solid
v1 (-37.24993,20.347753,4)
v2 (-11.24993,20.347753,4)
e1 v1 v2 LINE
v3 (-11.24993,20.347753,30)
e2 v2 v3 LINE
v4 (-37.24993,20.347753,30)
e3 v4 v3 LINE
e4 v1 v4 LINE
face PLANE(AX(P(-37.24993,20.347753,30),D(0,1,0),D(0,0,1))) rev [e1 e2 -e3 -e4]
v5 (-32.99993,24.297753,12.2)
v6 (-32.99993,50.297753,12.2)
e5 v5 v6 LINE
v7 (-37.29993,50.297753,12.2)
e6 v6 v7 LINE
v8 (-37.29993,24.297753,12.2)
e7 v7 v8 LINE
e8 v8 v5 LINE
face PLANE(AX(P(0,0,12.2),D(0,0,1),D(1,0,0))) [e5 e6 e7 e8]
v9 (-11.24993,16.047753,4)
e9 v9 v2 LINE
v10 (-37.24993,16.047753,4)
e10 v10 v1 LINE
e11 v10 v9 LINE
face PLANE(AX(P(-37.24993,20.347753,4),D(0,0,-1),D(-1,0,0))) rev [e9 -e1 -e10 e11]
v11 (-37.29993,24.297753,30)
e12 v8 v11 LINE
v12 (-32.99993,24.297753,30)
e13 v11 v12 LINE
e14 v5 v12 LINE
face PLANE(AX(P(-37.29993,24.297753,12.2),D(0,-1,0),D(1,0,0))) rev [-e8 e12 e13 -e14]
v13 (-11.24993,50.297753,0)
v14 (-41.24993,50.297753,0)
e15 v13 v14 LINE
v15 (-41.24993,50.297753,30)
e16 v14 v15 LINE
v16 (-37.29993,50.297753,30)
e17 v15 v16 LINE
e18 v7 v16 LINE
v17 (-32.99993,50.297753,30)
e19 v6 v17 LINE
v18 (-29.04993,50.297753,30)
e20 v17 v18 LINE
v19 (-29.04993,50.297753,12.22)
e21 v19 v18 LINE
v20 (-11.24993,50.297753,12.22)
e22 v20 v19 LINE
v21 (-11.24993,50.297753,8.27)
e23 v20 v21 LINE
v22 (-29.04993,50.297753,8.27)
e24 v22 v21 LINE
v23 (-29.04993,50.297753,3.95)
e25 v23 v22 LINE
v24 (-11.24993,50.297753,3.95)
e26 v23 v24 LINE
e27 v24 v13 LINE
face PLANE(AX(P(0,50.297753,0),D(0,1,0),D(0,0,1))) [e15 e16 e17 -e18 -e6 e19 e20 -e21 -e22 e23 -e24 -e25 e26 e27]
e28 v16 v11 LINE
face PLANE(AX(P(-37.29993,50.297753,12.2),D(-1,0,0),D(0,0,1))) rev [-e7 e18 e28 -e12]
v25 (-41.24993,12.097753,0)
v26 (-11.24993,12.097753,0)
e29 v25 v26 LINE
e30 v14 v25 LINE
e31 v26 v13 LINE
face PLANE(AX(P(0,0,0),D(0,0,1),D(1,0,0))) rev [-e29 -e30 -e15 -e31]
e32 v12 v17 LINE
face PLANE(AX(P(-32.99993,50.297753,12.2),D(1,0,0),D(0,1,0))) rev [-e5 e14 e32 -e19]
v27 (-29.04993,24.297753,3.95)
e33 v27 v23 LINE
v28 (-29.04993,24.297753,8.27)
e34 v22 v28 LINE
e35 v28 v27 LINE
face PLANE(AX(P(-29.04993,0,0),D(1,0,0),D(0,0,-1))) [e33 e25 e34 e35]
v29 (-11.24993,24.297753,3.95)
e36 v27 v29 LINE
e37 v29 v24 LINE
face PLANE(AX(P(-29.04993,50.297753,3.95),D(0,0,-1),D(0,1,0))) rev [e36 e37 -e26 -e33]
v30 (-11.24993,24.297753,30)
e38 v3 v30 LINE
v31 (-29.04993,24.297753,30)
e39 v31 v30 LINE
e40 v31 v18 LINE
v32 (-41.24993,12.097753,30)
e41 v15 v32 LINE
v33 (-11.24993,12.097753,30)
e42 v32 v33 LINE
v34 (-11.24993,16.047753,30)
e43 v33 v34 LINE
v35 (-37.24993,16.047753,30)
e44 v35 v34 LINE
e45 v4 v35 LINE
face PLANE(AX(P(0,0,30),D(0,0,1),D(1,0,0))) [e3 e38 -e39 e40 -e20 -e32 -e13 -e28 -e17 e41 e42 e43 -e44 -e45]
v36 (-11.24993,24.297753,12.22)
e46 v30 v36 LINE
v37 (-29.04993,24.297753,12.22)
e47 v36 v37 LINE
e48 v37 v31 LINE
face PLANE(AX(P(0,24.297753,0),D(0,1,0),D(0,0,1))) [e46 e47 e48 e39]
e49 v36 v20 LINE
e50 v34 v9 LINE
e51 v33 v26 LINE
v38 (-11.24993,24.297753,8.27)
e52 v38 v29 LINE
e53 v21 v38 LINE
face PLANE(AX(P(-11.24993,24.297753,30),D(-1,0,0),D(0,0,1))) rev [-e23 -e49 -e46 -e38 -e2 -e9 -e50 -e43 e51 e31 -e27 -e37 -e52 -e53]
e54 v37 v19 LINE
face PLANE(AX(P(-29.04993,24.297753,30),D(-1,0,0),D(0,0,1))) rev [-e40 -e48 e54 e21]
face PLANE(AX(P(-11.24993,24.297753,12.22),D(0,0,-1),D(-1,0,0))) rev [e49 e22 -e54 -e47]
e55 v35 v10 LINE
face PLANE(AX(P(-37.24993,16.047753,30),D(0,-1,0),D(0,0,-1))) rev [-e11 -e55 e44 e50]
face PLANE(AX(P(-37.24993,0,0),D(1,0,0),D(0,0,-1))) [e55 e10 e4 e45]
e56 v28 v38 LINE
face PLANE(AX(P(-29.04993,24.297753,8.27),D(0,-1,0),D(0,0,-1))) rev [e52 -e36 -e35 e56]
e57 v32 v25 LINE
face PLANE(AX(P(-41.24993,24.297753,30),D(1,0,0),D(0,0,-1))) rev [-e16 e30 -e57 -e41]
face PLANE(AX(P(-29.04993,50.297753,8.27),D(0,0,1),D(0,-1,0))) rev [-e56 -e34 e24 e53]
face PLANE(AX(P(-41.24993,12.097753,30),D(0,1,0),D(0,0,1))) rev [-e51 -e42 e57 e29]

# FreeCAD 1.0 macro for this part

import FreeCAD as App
import Part
import Sketcher
from FreeCAD import Vector
Q = App.Units.Quantity

doc = App.newDocument("Part")
body = doc.addObject("PartDesign::Body", "Body")

# Sketch on XY plane
sketch1 = doc.addObject("Sketcher::SketchObject", "Sketch")
body.addObject(sketch1)
sketch1.AttachmentSupport = (doc.XY_Plane, [""])
sketch1.MapMode = "FlatFace"
sketch1.addGeometry([
    Part.LineSegment(Vector(-41, 24, 0), Vector(-41, 12, 0)),
    Part.LineSegment(Vector(-41, 12, 0), Vector(-11, 12, 0)),
    Part.LineSegment(Vector(-11, 12, 0), Vector(-11, 24, 0)),
    Part.LineSegment(Vector(-11, 24, 0), Vector(-41, 24, 0)),
], False)
sketch1.addConstraint([
    Sketcher.Constraint("Coincident", 0, 2, 1, 1),
    Sketcher.Constraint("Coincident", 1, 2, 2, 1),
    Sketcher.Constraint("Coincident", 2, 2, 3, 1),
    Sketcher.Constraint("Coincident", 3, 2, 0, 1),
    Sketcher.Constraint("Vertical", 0),
    Sketcher.Constraint("Horizontal", 1),
    Sketcher.Constraint("Vertical", 2),
    Sketcher.Constraint("Horizontal", 3),
    Sketcher.Constraint("DistanceX", 1, 1, 1, 2, Q("30 mm")),
    Sketcher.Constraint("DistanceY", 0, 2, 0, 1, Q("12.2 mm")),
    Sketcher.Constraint("DistanceX", 0, 2, -1, 1, Q("41.24993 mm")),
    Sketcher.Constraint("DistanceY", -1, 1, 0, 2, Q("12.097753 mm")),
])
pad1 = doc.addObject("PartDesign::Pad", "Pad")
body.addObject(pad1)
pad1.Profile = sketch1
pad1.Length = 30

# Sketch on YZ plane
sketch2 = doc.addObject("Sketcher::SketchObject", "Sketch001")
body.addObject(sketch2)
sketch2.AttachmentSupport = (doc.YZ_Plane, [""])
sketch2.MapMode = "FlatFace"
sketch2.AttachmentOffset = App.Placement(Vector(0, 0, -11.24993), App.Rotation())
sketch2.addGeometry([
    Part.LineSegment(Vector(20.3, 30, 0), Vector(16, 30, 0)),
    Part.LineSegment(Vector(16, 30, 0), Vector(16, 4, 0)),
    Part.LineSegment(Vector(16, 4, 0), Vector(20.3, 4, 0)),
    Part.LineSegment(Vector(20.3, 4, 0), Vector(20.3, 30, 0)),
], False)
sketch2.addConstraint([
    Sketcher.Constraint("Coincident", 0, 2, 1, 1),
    Sketcher.Constraint("Coincident", 1, 2, 2, 1),
    Sketcher.Constraint("Coincident", 2, 2, 3, 1),
    Sketcher.Constraint("Coincident", 3, 2, 0, 1),
    Sketcher.Constraint("Horizontal", 0),
    Sketcher.Constraint("Vertical", 1),
    Sketcher.Constraint("Horizontal", 2),
    Sketcher.Constraint("Vertical", 3),
    Sketcher.Constraint("DistanceY", 1, 2, 1, 1, Q("26 mm")),
    Sketcher.Constraint("DistanceX", 0, 2, 0, 1, Q("4.3 mm")),
    Sketcher.Constraint("DistanceY", -1, 1, 0, 2, Q("30 mm")),
    Sketcher.Constraint("DistanceX", -1, 1, 0, 2, Q("16.047753 mm")),
])
pocket1 = doc.addObject("PartDesign::Pocket", "Pocket")
body.addObject(pocket1)
pocket1.Profile = sketch2
pocket1.Length = 26

# Sketch on XZ plane
sketch3 = doc.addObject("Sketcher::SketchObject", "Sketch002")
body.addObject(sketch3)
sketch3.AttachmentSupport = (doc.XZ_Plane, [""])
sketch3.MapMode = "FlatFace"
sketch3.AttachmentOffset = App.Placement(Vector(0, 0, -24.297753), App.Rotation())
sketch3.addGeometry([
    Part.LineSegment(Vector(-41, 0, 0), Vector(-41, 30, 0)),
    Part.LineSegment(Vector(-41, 30, 0), Vector(-11, 30, 0)),
    Part.LineSegment(Vector(-11, 30, 0), Vector(-11, 0, 0)),
    Part.LineSegment(Vector(-11, 0, 0), Vector(-41, 0, 0)),
], False)
sketch3.addConstraint([
    Sketcher.Constraint("Coincident", 0, 2, 1, 1),
    Sketcher.Constraint("Coincident", 1, 2, 2, 1),
    Sketcher.Constraint("Coincident", 2, 2, 3, 1),
    Sketcher.Constraint("Coincident", 3, 2, 0, 1),
    Sketcher.Constraint("Vertical", 0),
    Sketcher.Constraint("Horizontal", 1),
    Sketcher.Constraint("Vertical", 2),
    Sketcher.Constraint("Horizontal", 3),
    Sketcher.Constraint("PointOnObject", 2, 2, -1),
    Sketcher.Constraint("Equal", 3, 0),
    Sketcher.Constraint("DistanceX", 1, 1, 1, 2, Q("30 mm")),
    Sketcher.Constraint("DistanceX", 0, 2, -1, 1, Q("41.24993 mm")),
])
pad2 = doc.addObject("PartDesign::Pad", "Pad001")
body.addObject(pad2)
pad2.Profile = sketch3
pad2.Length = 26
pad2.Reversed = True

# Sketch on XZ plane
sketch4 = doc.addObject("Sketcher::SketchObject", "Sketch003")
body.addObject(sketch4)
sketch4.AttachmentSupport = (doc.XZ_Plane, [""])
sketch4.MapMode = "FlatFace"
sketch4.AttachmentOffset = App.Placement(Vector(0, 0, -50.297753), App.Rotation())
sketch4.addGeometry([
    Part.LineSegment(Vector(-29, 12, 0), Vector(-29, 30, 0)),
    Part.LineSegment(Vector(-29, 30, 0), Vector(-11, 30, 0)),
    Part.LineSegment(Vector(-11, 30, 0), Vector(-11, 12, 0)),
    Part.LineSegment(Vector(-11, 12, 0), Vector(-29, 12, 0)),
], False)
sketch4.addConstraint([
    Sketcher.Constraint("Coincident", 0, 2, 1, 1),
    Sketcher.Constraint("Coincident", 1, 2, 2, 1),
    Sketcher.Constraint("Coincident", 2, 2, 3, 1),
    Sketcher.Constraint("Coincident", 3, 2, 0, 1),
    Sketcher.Constraint("Vertical", 0),
    Sketcher.Constraint("Horizontal", 1),
    Sketcher.Constraint("Vertical", 2),
    Sketcher.Constraint("Horizontal", 3),
    Sketcher.Constraint("DistanceX", 1, 1, 1, 2, Q("17.8 mm")),
    Sketcher.Constraint("DistanceY", -1, 1, 0, 2, Q("30 mm")),
    Sketcher.Constraint("DistanceY", 0, 1, 0, 2, Q("17.78 mm")),
    Sketcher.Constraint("DistanceX", 0, 2, -1, 1, Q("29.04993 mm")),
])
pocket2 = doc.addObject("PartDesign::Pocket", "Pocket001")
body.addObject(pocket2)
pocket2.Profile = sketch4
pocket2.Length = 26
pocket2.Reversed = True

# Sketch on YZ plane
sketch5 = doc.addObject("Sketcher::SketchObject", "Sketch004")
body.addObject(sketch5)
sketch5.AttachmentSupport = (doc.YZ_Plane, [""])
sketch5.MapMode = "FlatFace"
sketch5.AttachmentOffset = App.Placement(Vector(0, 0, -11.24993), App.Rotation())
sketch5.addGeometry([
    Part.LineSegment(Vector(50.3, 8.3, 0), Vector(24.3, 8.3, 0)),
    Part.LineSegment(Vector(24.3, 8.3, 0), Vector(24.3, 4, 0)),
    Part.LineSegment(Vector(24.3, 4, 0), Vector(50.3, 4, 0)),
    Part.LineSegment(Vector(50.3, 4, 0), Vector(50.3, 8.3, 0)),
], False)
sketch5.addConstraint([
    Sketcher.Constraint("Coincident", 0, 2, 1, 1),
    Sketcher.Constraint("Coincident", 1, 2, 2, 1),
    Sketcher.Constraint("Coincident", 2, 2, 3, 1),
    Sketcher.Constraint("Coincident", 3, 2, 0, 1),
    Sketcher.Constraint("Horizontal", 0),
    Sketcher.Constraint("Vertical", 1),
    Sketcher.Constraint("Horizontal", 2),
    Sketcher.Constraint("Vertical", 3),
    Sketcher.Constraint("DistanceX", 0, 2, 0, 1, Q("26 mm")),
    Sketcher.Constraint("DistanceY", 1, 2, 1, 1, Q("4.32 mm")),
    Sketcher.Constraint("DistanceY", -1, 1, 0, 2, Q("8.27 mm")),
    Sketcher.Constraint("DistanceX", -1, 1, 0, 2, Q("24.297753 mm")),
])
pocket3 = doc.addObject("PartDesign::Pocket", "Pocket002")
body.addObject(pocket3)
pocket3.Profile = sketch5
pocket3.Length = 17.8

# Sketch on XY plane
sketch6 = doc.addObject("Sketcher::SketchObject", "Sketch005")
body.addObject(sketch6)
sketch6.AttachmentSupport = (doc.XY_Plane, [""])
sketch6.MapMode = "FlatFace"
sketch6.AttachmentOffset = App.Placement(Vector(0, 0, 30), App.Rotation())
sketch6.addGeometry([
    Part.LineSegment(Vector(-37.3, 50.3, 0), Vector(-37.3, 24.3, 0)),
    Part.LineSegment(Vector(-37.3, 24.3, 0), Vector(-33, 24.3, 0)),
    Part.LineSegment(Vector(-33, 24.3, 0), Vector(-33, 50.3, 0)),
    Part.LineSegment(Vector(-33, 50.3, 0), Vector(-37.3, 50.3, 0)),
], False)
sketch6.addConstraint([
    Sketcher.Constraint("Coincident", 0, 2, 1, 1),
    Sketcher.Constraint("Coincident", 1, 2, 2, 1),
    Sketcher.Constraint("Coincident", 2, 2, 3, 1),
    Sketcher.Constraint("Coincident", 3, 2, 0, 1),
    Sketcher.Constraint("Vertical", 0),
    Sketcher.Constraint("Horizontal", 1),
    Sketcher.Constraint("Vertical", 2),
    Sketcher.Constraint("Horizontal", 3),
    Sketcher.Constraint("DistanceY", 0, 2, 0, 1, Q("26 mm")),
    Sketcher.Constraint("DistanceX", 1, 1, 1, 2, Q("4.3 mm")),
    Sketcher.Constraint("DistanceX", 0, 2, -1, 1, Q("37.29993 mm")),
    Sketcher.Constraint("DistanceY", -1, 1, 0, 2, Q("24.297753 mm")),
])
pocket4 = doc.addObject("PartDesign::Pocket", "Pocket003")
body.addObject(pocket4)
pocket4.Profile = sketch6
pocket4.Length = 17.8

doc.recompute()
